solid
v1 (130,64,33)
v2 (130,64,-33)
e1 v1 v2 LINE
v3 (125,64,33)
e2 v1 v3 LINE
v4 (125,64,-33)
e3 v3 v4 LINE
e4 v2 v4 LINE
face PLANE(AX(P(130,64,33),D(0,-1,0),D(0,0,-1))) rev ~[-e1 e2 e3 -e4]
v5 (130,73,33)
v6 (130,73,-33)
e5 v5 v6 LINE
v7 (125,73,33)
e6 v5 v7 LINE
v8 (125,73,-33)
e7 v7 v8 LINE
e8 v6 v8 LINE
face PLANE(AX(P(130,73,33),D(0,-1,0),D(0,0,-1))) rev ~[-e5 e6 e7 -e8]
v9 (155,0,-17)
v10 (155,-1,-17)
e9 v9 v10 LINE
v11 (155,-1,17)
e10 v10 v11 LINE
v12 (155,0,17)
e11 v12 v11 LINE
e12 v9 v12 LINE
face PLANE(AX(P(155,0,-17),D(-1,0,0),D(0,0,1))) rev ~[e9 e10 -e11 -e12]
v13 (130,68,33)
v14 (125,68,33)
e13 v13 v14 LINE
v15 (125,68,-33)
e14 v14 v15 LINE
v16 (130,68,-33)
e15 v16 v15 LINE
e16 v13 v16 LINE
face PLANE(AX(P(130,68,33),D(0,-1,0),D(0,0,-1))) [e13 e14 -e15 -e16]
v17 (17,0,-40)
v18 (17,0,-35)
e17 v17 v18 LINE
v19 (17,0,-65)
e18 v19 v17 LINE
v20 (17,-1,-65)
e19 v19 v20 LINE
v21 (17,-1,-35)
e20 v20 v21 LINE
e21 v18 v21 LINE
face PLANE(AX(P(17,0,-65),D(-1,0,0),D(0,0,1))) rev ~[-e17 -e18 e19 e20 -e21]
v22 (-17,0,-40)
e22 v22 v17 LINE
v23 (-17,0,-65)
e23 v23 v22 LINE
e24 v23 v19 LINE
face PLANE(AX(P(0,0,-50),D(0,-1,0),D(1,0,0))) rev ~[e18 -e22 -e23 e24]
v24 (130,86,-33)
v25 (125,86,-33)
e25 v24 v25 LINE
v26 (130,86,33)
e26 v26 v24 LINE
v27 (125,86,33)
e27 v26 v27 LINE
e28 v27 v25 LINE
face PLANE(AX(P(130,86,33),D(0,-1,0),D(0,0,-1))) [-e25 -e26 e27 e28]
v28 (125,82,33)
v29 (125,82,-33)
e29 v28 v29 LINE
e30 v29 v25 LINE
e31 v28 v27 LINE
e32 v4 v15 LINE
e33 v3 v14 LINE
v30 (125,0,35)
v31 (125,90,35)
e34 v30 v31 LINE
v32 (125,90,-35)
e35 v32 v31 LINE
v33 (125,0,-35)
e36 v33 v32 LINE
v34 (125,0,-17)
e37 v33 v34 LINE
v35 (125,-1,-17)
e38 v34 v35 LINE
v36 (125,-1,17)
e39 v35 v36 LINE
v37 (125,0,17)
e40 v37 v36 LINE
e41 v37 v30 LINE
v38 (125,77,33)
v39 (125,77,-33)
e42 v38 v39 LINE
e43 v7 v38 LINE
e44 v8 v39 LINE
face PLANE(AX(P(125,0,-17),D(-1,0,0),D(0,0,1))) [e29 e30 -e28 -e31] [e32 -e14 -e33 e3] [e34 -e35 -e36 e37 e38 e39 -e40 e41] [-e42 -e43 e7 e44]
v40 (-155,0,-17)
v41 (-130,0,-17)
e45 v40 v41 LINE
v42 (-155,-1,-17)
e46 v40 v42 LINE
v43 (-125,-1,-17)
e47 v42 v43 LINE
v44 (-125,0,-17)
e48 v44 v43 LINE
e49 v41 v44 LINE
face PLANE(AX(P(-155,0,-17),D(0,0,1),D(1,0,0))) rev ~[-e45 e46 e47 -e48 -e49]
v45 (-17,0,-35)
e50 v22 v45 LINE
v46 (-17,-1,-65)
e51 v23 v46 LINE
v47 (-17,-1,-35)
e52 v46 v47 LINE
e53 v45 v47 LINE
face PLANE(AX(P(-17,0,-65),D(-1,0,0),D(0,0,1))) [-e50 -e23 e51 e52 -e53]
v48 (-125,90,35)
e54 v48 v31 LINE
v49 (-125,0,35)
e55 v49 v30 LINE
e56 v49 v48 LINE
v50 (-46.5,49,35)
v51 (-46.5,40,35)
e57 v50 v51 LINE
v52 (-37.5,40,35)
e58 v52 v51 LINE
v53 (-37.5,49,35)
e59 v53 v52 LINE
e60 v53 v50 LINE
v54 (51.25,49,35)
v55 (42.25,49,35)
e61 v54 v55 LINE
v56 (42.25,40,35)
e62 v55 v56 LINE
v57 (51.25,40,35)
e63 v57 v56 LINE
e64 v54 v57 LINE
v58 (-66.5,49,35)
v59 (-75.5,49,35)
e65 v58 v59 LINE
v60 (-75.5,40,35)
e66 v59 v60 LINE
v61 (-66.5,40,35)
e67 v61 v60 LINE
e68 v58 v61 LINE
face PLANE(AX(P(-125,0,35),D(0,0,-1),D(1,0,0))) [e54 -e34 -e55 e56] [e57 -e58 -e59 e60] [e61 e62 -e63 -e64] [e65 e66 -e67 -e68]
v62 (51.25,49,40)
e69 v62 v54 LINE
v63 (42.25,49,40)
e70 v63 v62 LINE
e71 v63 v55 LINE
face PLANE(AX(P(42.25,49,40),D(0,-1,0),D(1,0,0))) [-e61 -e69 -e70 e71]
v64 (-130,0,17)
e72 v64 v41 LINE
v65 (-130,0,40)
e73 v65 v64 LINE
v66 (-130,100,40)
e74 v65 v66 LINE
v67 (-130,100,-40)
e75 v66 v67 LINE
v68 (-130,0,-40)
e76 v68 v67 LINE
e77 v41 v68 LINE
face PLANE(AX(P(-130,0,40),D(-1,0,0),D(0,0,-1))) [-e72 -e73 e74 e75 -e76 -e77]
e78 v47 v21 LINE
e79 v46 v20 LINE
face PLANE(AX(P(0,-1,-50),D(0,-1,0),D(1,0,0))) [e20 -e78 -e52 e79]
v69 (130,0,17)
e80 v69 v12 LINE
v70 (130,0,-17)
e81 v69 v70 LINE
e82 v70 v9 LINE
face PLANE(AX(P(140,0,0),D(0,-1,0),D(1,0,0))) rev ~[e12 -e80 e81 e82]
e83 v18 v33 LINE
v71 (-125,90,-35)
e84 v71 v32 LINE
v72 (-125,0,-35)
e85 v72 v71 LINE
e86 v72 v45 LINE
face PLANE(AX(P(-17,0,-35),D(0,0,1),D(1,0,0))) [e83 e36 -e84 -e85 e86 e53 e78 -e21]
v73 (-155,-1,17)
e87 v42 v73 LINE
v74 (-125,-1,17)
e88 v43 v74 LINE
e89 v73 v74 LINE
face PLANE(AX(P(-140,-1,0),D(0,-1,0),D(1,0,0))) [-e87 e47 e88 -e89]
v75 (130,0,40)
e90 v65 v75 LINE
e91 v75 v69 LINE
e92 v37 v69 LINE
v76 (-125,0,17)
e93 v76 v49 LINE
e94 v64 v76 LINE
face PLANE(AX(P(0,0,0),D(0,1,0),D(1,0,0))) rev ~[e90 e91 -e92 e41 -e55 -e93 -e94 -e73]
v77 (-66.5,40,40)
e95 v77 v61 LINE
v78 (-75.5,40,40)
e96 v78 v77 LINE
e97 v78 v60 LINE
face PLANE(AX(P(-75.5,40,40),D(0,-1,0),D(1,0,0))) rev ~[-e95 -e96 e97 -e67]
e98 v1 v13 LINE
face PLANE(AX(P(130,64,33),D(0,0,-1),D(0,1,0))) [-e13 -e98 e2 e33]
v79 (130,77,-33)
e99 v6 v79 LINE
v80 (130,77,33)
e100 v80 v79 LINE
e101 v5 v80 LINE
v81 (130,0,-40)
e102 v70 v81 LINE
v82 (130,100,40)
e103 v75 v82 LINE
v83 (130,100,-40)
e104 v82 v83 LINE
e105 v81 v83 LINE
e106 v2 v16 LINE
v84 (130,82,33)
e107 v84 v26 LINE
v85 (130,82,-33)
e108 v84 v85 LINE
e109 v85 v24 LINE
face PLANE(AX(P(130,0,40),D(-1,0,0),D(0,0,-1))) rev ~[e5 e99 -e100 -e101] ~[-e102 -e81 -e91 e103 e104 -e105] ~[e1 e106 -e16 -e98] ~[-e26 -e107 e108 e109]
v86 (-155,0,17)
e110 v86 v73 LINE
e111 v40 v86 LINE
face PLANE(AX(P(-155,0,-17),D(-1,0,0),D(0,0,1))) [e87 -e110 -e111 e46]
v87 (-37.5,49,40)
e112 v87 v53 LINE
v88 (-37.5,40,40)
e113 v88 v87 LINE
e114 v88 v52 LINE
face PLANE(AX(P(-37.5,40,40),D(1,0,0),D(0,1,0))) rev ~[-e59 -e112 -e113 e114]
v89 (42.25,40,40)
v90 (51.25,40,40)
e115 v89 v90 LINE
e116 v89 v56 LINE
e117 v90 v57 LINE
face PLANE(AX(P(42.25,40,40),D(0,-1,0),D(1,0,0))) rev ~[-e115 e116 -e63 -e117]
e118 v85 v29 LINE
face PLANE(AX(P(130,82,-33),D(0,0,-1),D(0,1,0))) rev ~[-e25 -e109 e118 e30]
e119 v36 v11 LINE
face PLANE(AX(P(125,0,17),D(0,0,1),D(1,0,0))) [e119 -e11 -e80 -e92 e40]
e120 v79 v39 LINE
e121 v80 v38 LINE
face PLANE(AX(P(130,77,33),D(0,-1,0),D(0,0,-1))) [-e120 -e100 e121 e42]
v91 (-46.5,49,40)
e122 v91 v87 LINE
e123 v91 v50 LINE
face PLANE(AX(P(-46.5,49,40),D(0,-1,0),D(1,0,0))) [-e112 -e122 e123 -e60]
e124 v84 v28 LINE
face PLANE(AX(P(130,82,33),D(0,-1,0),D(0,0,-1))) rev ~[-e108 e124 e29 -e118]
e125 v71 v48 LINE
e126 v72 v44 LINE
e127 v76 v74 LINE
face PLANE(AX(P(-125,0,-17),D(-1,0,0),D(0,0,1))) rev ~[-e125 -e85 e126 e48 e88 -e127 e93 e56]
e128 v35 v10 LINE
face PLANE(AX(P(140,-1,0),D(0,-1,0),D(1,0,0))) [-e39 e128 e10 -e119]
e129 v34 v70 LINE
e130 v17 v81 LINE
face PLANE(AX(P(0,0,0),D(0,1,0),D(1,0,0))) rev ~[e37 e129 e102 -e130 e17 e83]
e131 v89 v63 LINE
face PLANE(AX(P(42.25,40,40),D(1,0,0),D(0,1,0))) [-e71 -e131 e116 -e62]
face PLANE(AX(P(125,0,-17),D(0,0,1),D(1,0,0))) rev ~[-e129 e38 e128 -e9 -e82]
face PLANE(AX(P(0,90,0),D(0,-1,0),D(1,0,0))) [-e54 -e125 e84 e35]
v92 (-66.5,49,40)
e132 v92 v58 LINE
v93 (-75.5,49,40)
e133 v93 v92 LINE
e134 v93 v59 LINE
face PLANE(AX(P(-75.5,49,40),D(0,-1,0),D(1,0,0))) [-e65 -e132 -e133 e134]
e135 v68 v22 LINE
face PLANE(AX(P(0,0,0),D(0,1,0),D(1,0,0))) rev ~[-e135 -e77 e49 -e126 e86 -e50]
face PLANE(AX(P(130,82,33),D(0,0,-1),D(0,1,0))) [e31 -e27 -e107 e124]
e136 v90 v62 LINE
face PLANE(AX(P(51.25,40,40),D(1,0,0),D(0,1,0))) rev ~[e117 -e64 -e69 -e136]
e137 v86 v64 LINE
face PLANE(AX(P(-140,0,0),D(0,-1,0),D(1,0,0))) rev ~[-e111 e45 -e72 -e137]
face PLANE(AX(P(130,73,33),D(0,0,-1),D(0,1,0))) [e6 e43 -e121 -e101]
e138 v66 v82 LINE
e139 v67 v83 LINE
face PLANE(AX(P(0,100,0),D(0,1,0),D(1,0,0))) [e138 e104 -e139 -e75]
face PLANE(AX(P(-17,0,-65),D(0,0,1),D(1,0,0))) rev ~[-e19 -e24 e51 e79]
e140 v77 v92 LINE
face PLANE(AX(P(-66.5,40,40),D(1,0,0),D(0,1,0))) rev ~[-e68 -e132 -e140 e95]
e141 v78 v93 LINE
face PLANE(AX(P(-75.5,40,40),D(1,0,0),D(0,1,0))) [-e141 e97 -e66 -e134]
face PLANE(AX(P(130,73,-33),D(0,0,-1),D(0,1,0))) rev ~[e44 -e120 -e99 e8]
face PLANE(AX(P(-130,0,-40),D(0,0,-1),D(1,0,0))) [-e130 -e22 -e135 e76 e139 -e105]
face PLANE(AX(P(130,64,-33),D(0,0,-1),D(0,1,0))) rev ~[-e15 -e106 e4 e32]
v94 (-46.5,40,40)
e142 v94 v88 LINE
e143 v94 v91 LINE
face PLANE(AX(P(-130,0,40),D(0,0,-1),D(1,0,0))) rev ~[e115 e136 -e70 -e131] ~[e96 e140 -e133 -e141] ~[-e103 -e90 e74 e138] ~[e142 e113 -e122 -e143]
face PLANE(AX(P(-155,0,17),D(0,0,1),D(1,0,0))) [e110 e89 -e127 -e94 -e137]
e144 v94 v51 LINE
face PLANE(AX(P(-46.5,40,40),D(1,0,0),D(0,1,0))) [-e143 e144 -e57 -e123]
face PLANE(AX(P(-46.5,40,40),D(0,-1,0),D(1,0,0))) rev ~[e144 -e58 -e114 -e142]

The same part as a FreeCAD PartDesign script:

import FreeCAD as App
import Part
import Sketcher

doc = App.newDocument("Part")
body = doc.addObject("PartDesign::Body", "Body")

# Sketch on XZ plane
sketch1 = body.newObject("Sketcher::SketchObject", "Sketch")
sketch1.AttachmentSupport = (doc.getObject("XZ_Plane"), [""])
sketch1.MapMode = "FlatFace"
sketch1.addGeometry(Part.LineSegment(App.Vector(-130, -40, 0), App.Vector(-130, 40, 0)), False)
sketch1.addGeometry(Part.LineSegment(App.Vector(-130, 40, 0), App.Vector(130, 40, 0)), False)
sketch1.addGeometry(Part.LineSegment(App.Vector(130, 40, 0), App.Vector(130, -40, 0)), False)
sketch1.addGeometry(Part.LineSegment(App.Vector(130, -40, 0), App.Vector(-130, -40, 0)), False)
sketch1.addConstraint(Sketcher.Constraint("Coincident", 0, 2, 1, 1))
sketch1.addConstraint(Sketcher.Constraint("Coincident", 1, 2, 2, 1))
sketch1.addConstraint(Sketcher.Constraint("Coincident", 2, 2, 3, 1))
sketch1.addConstraint(Sketcher.Constraint("Coincident", 3, 2, 0, 1))
sketch1.addConstraint(Sketcher.Constraint("Vertical", 0))
sketch1.addConstraint(Sketcher.Constraint("Horizontal", 1))
sketch1.addConstraint(Sketcher.Constraint("Vertical", 2))
sketch1.addConstraint(Sketcher.Constraint("Horizontal", 3))
sketch1.addConstraint(Sketcher.Constraint("Symmetric", 0, 2, 2, 2, -1, 1))
sketch1.addConstraint(Sketcher.Constraint("DistanceX", 1, 1, 1, 2, 260.0))
sketch1.addConstraint(Sketcher.Constraint("DistanceY", 0, 1, 0, 2, 80.0))
pad1 = body.newObject("PartDesign::Pad", "Pad")
pad1.Profile = sketch1
pad1.Length = 100
pad1.Reversed = True

# Sketch on XZ plane
sketch2 = body.newObject("Sketcher::SketchObject", "Sketch001")
sketch2.AttachmentSupport = (doc.getObject("XZ_Plane"), [""])
sketch2.MapMode = "FlatFace"
sketch2.addGeometry(Part.LineSegment(App.Vector(-125, 35, 0), App.Vector(-125, -35, 0)), False)
sketch2.addGeometry(Part.LineSegment(App.Vector(-125, -35, 0), App.Vector(125, -35, 0)), False)
sketch2.addGeometry(Part.LineSegment(App.Vector(125, -35, 0), App.Vector(125, 35, 0)), False)
sketch2.addGeometry(Part.LineSegment(App.Vector(125, 35, 0), App.Vector(-125, 35, 0)), False)
sketch2.addConstraint(Sketcher.Constraint("Coincident", 0, 2, 1, 1))
sketch2.addConstraint(Sketcher.Constraint("Coincident", 1, 2, 2, 1))
sketch2.addConstraint(Sketcher.Constraint("Coincident", 2, 2, 3, 1))
sketch2.addConstraint(Sketcher.Constraint("Coincident", 3, 2, 0, 1))
sketch2.addConstraint(Sketcher.Constraint("Vertical", 0))
sketch2.addConstraint(Sketcher.Constraint("Horizontal", 1))
sketch2.addConstraint(Sketcher.Constraint("Vertical", 2))
sketch2.addConstraint(Sketcher.Constraint("Horizontal", 3))
sketch2.addConstraint(Sketcher.Constraint("Symmetric", 0, 2, 2, 2, -1, 1))
sketch2.addConstraint(Sketcher.Constraint("DistanceX", 1, 1, 1, 2, 250.0))
sketch2.addConstraint(Sketcher.Constraint("DistanceY", 0, 2, 0, 1, 70.0))
pocket1 = body.newObject("PartDesign::Pocket", "Pocket")
pocket1.Profile = sketch2
pocket1.Length = 90

# Sketch on XY plane
sketch3 = body.newObject("Sketcher::SketchObject", "Sketch002")
sketch3.AttachmentSupport = (doc.getObject("XY_Plane"), [""])
sketch3.MapMode = "FlatFace"
sketch3.AttachmentOffset = App.Placement(App.Vector(0, 0, 40), App.Rotation())
sketch3.addGeometry(Part.LineSegment(App.Vector(-76, 49, 0), App.Vector(-76, 40, 0)), False)
sketch3.addGeometry(Part.LineSegment(App.Vector(-76, 40, 0), App.Vector(-66, 40, 0)), False)
sketch3.addGeometry(Part.LineSegment(App.Vector(-66, 40, 0), App.Vector(-66, 49, 0)), False)
sketch3.addGeometry(Part.LineSegment(App.Vector(-66, 49, 0), App.Vector(-76, 49, 0)), False)
sketch3.addGeometry(Part.LineSegment(App.Vector(-46, 49, 0), App.Vector(-46, 40, 0)), False)
sketch3.addGeometry(Part.LineSegment(App.Vector(-46, 40, 0), App.Vector(-38, 40, 0)), False)
sketch3.addGeometry(Part.LineSegment(App.Vector(-38, 40, 0), App.Vector(-38, 49, 0)), False)
sketch3.addGeometry(Part.LineSegment(App.Vector(-38, 49, 0), App.Vector(-46, 49, 0)), False)
sketch3.addGeometry(Part.LineSegment(App.Vector(42, 49, 0), App.Vector(42, 40, 0)), False)
sketch3.addGeometry(Part.LineSegment(App.Vector(42, 40, 0), App.Vector(51, 40, 0)), False)
sketch3.addGeometry(Part.LineSegment(App.Vector(51, 40, 0), App.Vector(51, 49, 0)), False)
sketch3.addGeometry(Part.LineSegment(App.Vector(51, 49, 0), App.Vector(42, 49, 0)), False)
sketch3.addConstraint(Sketcher.Constraint("Coincident", 0, 2, 1, 1))
sketch3.addConstraint(Sketcher.Constraint("Coincident", 1, 2, 2, 1))
sketch3.addConstraint(Sketcher.Constraint("Coincident", 2, 2, 3, 1))
sketch3.addConstraint(Sketcher.Constraint("Coincident", 3, 2, 0, 1))
sketch3.addConstraint(Sketcher.Constraint("Coincident", 4, 2, 5, 1))
sketch3.addConstraint(Sketcher.Constraint("Coincident", 5, 2, 6, 1))
sketch3.addConstraint(Sketcher.Constraint("Coincident", 6, 2, 7, 1))
sketch3.addConstraint(Sketcher.Constraint("Coincident", 7, 2, 4, 1))
sketch3.addConstraint(Sketcher.Constraint("Coincident", 8, 2, 9, 1))
sketch3.addConstraint(Sketcher.Constraint("Coincident", 9, 2, 10, 1))
sketch3.addConstraint(Sketcher.Constraint("Coincident", 10, 2, 11, 1))
sketch3.addConstraint(Sketcher.Constraint("Coincident", 11, 2, 8, 1))
sketch3.addConstraint(Sketcher.Constraint("Vertical", 0))
sketch3.addConstraint(Sketcher.Constraint("Horizontal", 1))
sketch3.addConstraint(Sketcher.Constraint("Vertical", 2))
sketch3.addConstraint(Sketcher.Constraint("Horizontal", 3))
sketch3.addConstraint(Sketcher.Constraint("Vertical", 4))
sketch3.addConstraint(Sketcher.Constraint("Horizontal", 5))
sketch3.addConstraint(Sketcher.Constraint("Vertical", 6))
sketch3.addConstraint(Sketcher.Constraint("Horizontal", 7))
sketch3.addConstraint(Sketcher.Constraint("Vertical", 8))
sketch3.addConstraint(Sketcher.Constraint("Horizontal", 9))
sketch3.addConstraint(Sketcher.Constraint("Vertical", 10))
sketch3.addConstraint(Sketcher.Constraint("Horizontal", 11))
sketch3.addConstraint(Sketcher.Constraint("Horizontal", 1, 2, 4, 2))
sketch3.addConstraint(Sketcher.Constraint("Horizontal", 3, 2, 6, 2))
sketch3.addConstraint(Sketcher.Constraint("Horizontal", 5, 2, 8, 2))
sketch3.addConstraint(Sketcher.Constraint("Horizontal", 7, 2, 10, 2))
sketch3.addConstraint(Sketcher.Constraint("Equal", 3, 5))
sketch3.addConstraint(Sketcher.Constraint("Equal", 7, 9))
sketch3.addConstraint(Sketcher.Constraint("Equal", 11, 0))
sketch3.addConstraint(Sketcher.Constraint("DistanceX", 1, 1, 1, 2, 9.0))
sketch3.addConstraint(Sketcher.Constraint("DistanceY", -1, 1, 0, 2, 40.0))
sketch3.addConstraint(Sketcher.Constraint("DistanceX", 1, 2, 4, 2, 20.0))
sketch3.addConstraint(Sketcher.Constraint("DistanceX", 0, 2, -1, 1, 75.5))
sketch3.addConstraint(Sketcher.Constraint("DistanceX", -1, 1, 8, 2, 42.25))
pocket2 = body.newObject("PartDesign::Pocket", "Pocket001")
pocket2.Profile = sketch3
pocket2.Length = 23

# Sketch on YZ plane
sketch4 = body.newObject("Sketcher::SketchObject", "Sketch003")
sketch4.AttachmentSupport = (doc.getObject("YZ_Plane"), [""])
sketch4.MapMode = "FlatFace"
sketch4.AttachmentOffset = App.Placement(App.Vector(0, 0, 130), App.Rotation())
sketch4.addGeometry(Part.LineSegment(App.Vector(86, 33, 0), App.Vector(82, 33, 0)), False)
sketch4.addGeometry(Part.LineSegment(App.Vector(82, 33, 0), App.Vector(82, -33, 0)), False)
sketch4.addGeometry(Part.LineSegment(App.Vector(82, -33, 0), App.Vector(86, -33, 0)), False)
sketch4.addGeometry(Part.LineSegment(App.Vector(86, -33, 0), App.Vector(86, 33, 0)), False)
sketch4.addConstraint(Sketcher.Constraint("Coincident", 0, 2, 1, 1))
sketch4.addConstraint(Sketcher.Constraint("Coincident", 1, 2, 2, 1))
sketch4.addConstraint(Sketcher.Constraint("Coincident", 2, 2, 3, 1))
sketch4.addConstraint(Sketcher.Constraint("Coincident", 3, 2, 0, 1))
sketch4.addConstraint(Sketcher.Constraint("Horizontal", 0))
sketch4.addConstraint(Sketcher.Constraint("Vertical", 1))
sketch4.addConstraint(Sketcher.Constraint("Horizontal", 2))
sketch4.addConstraint(Sketcher.Constraint("Vertical", 3))
sketch4.addConstraint(Sketcher.Constraint("DistanceX", 0, 2, 0, 1, 4.0))
sketch4.addConstraint(Sketcher.Constraint("DistanceY", 1, 2, 1, 1, 66.0))
sketch4.addConstraint(Sketcher.Constraint("DistanceX", -1, 1, 0, 2, 82.0))
sketch4.addConstraint(Sketcher.Constraint("DistanceY", -1, 1, 0, 2, 33.0))
pocket3 = body.newObject("PartDesign::Pocket", "Pocket002")
pocket3.Profile = sketch4
pocket3.Length = 15

# Sketch on YZ plane
sketch5 = body.newObject("Sketcher::SketchObject", "Sketch004")
sketch5.AttachmentSupport = (doc.getObject("YZ_Plane"), [""])
sketch5.MapMode = "FlatFace"
sketch5.AttachmentOffset = App.Placement(App.Vector(0, 0, 130), App.Rotation())
sketch5.addGeometry(Part.LineSegment(App.Vector(77, 33, 0), App.Vector(73, 33, 0)), False)
sketch5.addGeometry(Part.LineSegment(App.Vector(73, 33, 0), App.Vector(73, -33, 0)), False)
sketch5.addGeometry(Part.LineSegment(App.Vector(73, -33, 0), App.Vector(77, -33, 0)), False)
sketch5.addGeometry(Part.LineSegment(App.Vector(77, -33, 0), App.Vector(77, 33, 0)), False)
sketch5.addConstraint(Sketcher.Constraint("Coincident", 0, 2, 1, 1))
sketch5.addConstraint(Sketcher.Constraint("Coincident", 1, 2, 2, 1))
sketch5.addConstraint(Sketcher.Constraint("Coincident", 2, 2, 3, 1))
sketch5.addConstraint(Sketcher.Constraint("Coincident", 3, 2, 0, 1))
sketch5.addConstraint(Sketcher.Constraint("Horizontal", 0))
sketch5.addConstraint(Sketcher.Constraint("Vertical", 1))
sketch5.addConstraint(Sketcher.Constraint("Horizontal", 2))
sketch5.addConstraint(Sketcher.Constraint("Vertical", 3))
sketch5.addConstraint(Sketcher.Constraint("DistanceX", 0, 2, 0, 1, 4.0))
sketch5.addConstraint(Sketcher.Constraint("DistanceY", 1, 2, 1, 1, 66.0))
sketch5.addConstraint(Sketcher.Constraint("DistanceX", -1, 1, 0, 2, 73.0))
sketch5.addConstraint(Sketcher.Constraint("DistanceY", -1, 1, 0, 2, 33.0))
pocket4 = body.newObject("PartDesign::Pocket", "Pocket003")
pocket4.Profile = sketch5
pocket4.Length = 10

# Sketch on YZ plane
sketch6 = body.newObject("Sketcher::SketchObject", "Sketch005")
sketch6.AttachmentSupport = (doc.getObject("YZ_Plane"), [""])
sketch6.MapMode = "FlatFace"
sketch6.AttachmentOffset = App.Placement(App.Vector(0, 0, 130), App.Rotation())
sketch6.addGeometry(Part.LineSegment(App.Vector(68, 33, 0), App.Vector(64, 33, 0)), False)
sketch6.addGeometry(Part.LineSegment(App.Vector(64, 33, 0), App.Vector(64, -33, 0)), False)
sketch6.addGeometry(Part.LineSegment(App.Vector(64, -33, 0), App.Vector(68, -33, 0)), False)
sketch6.addGeometry(Part.LineSegment(App.Vector(68, -33, 0), App.Vector(68, 33, 0)), False)
sketch6.addConstraint(Sketcher.Constraint("Coincident", 0, 2, 1, 1))
sketch6.addConstraint(Sketcher.Constraint("Coincident", 1, 2, 2, 1))
sketch6.addConstraint(Sketcher.Constraint("Coincident", 2, 2, 3, 1))
sketch6.addConstraint(Sketcher.Constraint("Coincident", 3, 2, 0, 1))
sketch6.addConstraint(Sketcher.Constraint("Horizontal", 0))
sketch6.addConstraint(Sketcher.Constraint("Vertical", 1))
sketch6.addConstraint(Sketcher.Constraint("Horizontal", 2))
sketch6.addConstraint(Sketcher.Constraint("Vertical", 3))
sketch6.addConstraint(Sketcher.Constraint("DistanceX", 0, 2, 0, 1, 4.0))
sketch6.addConstraint(Sketcher.Constraint("DistanceY", 1, 2, 1, 1, 66.0))
sketch6.addConstraint(Sketcher.Constraint("DistanceX", -1, 1, 0, 2, 64.0))
sketch6.addConstraint(Sketcher.Constraint("DistanceY", -1, 1, 0, 2, 33.0))
pocket5 = body.newObject("PartDesign::Pocket", "Pocket004")
pocket5.Profile = sketch6
pocket5.Length = 10

# Sketch on XZ plane
sketch7 = body.newObject("Sketcher::SketchObject", "Sketch006")
sketch7.AttachmentSupport = (doc.getObject("XZ_Plane"), [""])
sketch7.MapMode = "FlatFace"
sketch7.addGeometry(Part.LineSegment(App.Vector(-17, -35, 0), App.Vector(-17, -65, 0)), False)
sketch7.addGeometry(Part.LineSegment(App.Vector(-17, -65, 0), App.Vector(17, -65, 0)), False)
sketch7.addGeometry(Part.LineSegment(App.Vector(17, -65, 0), App.Vector(17, -35, 0)), False)
sketch7.addGeometry(Part.LineSegment(App.Vector(17, -35, 0), App.Vector(-17, -35, 0)), False)
sketch7.addConstraint(Sketcher.Constraint("Coincident", 0, 2, 1, 1))
sketch7.addConstraint(Sketcher.Constraint("Coincident", 1, 2, 2, 1))
sketch7.addConstraint(Sketcher.Constraint("Coincident", 2, 2, 3, 1))
sketch7.addConstraint(Sketcher.Constraint("Coincident", 3, 2, 0, 1))
sketch7.addConstraint(Sketcher.Constraint("Vertical", 0))
sketch7.addConstraint(Sketcher.Constraint("Horizontal", 1))
sketch7.addConstraint(Sketcher.Constraint("Vertical", 2))
sketch7.addConstraint(Sketcher.Constraint("Horizontal", 3))
sketch7.addConstraint(Sketcher.Constraint("DistanceX", 1, 1, 1, 2, 34.0))
sketch7.addConstraint(Sketcher.Constraint("DistanceY", 0, 2, 0, 1, 30.0))
sketch7.addConstraint(Sketcher.Constraint("DistanceX", 0, 2, -1, 1, 17.0))
sketch7.addConstraint(Sketcher.Constraint("DistanceY", 0, 2, -1, 1, 65.0))
pad2 = body.newObject("PartDesign::Pad", "Pad001")
pad2.Profile = sketch7
pad2.Length = 1

# Sketch on XZ plane
sketch8 = body.newObject("Sketcher::SketchObject", "Sketch007")
sketch8.AttachmentSupport = (doc.getObject("XZ_Plane"), [""])
sketch8.MapMode = "FlatFace"
sketch8.addGeometry(Part.LineSegment(App.Vector(-155, 17, 0), App.Vector(-155, -17, 0)), False)
sketch8.addGeometry(Part.LineSegment(App.Vector(-155, -17, 0), App.Vector(-125, -17, 0)), False)
sketch8.addGeometry(Part.LineSegment(App.Vector(-125, -17, 0), App.Vector(-125, 17, 0)), False)
sketch8.addGeometry(Part.LineSegment(App.Vector(-125, 17, 0), App.Vector(-155, 17, 0)), False)
sketch8.addConstraint(Sketcher.Constraint("Coincident", 0, 2, 1, 1))
sketch8.addConstraint(Sketcher.Constraint("Coincident", 1, 2, 2, 1))
sketch8.addConstraint(Sketcher.Constraint("Coincident", 2, 2, 3, 1))
sketch8.addConstraint(Sketcher.Constraint("Coincident", 3, 2, 0, 1))
sketch8.addConstraint(Sketcher.Constraint("Vertical", 0))
sketch8.addConstraint(Sketcher.Constraint("Horizontal", 1))
sketch8.addConstraint(Sketcher.Constraint("Vertical", 2))
sketch8.addConstraint(Sketcher.Constraint("Horizontal", 3))
sketch8.addConstraint(Sketcher.Constraint("DistanceX", 1, 1, 1, 2, 30.0))
sketch8.addConstraint(Sketcher.Constraint("DistanceY", 0, 2, 0, 1, 34.0))
sketch8.addConstraint(Sketcher.Constraint("DistanceX", 0, 2, -1, 1, 155.0))
sketch8.addConstraint(Sketcher.Constraint("DistanceY", 0, 2, -1, 1, 17.0))
pad3 = body.newObject("PartDesign::Pad", "Pad002")
pad3.Profile = sketch8
pad3.Length = 1

# Sketch on XZ plane
sketch9 = body.newObject("Sketcher::SketchObject", "Sketch008")
sketch9.AttachmentSupport = (doc.getObject("XZ_Plane"), [""])
sketch9.MapMode = "FlatFace"
sketch9.addGeometry(Part.LineSegment(App.Vector(125, 17, 0), App.Vector(125, -17, 0)), False)
sketch9.addGeometry(Part.LineSegment(App.Vector(125, -17, 0), App.Vector(155, -17, 0)), False)
sketch9.addGeometry(Part.LineSegment(App.Vector(155, -17, 0), App.Vector(155, 17, 0)), False)
sketch9.addGeometry(Part.LineSegment(App.Vector(155, 17, 0), App.Vector(125, 17, 0)), False)
sketch9.addConstraint(Sketcher.Constraint("Coincident", 0, 2, 1, 1))
sketch9.addConstraint(Sketcher.Constraint("Coincident", 1, 2, 2, 1))
sketch9.addConstraint(Sketcher.Constraint("Coincident", 2, 2, 3, 1))
sketch9.addConstraint(Sketcher.Constraint("Coincident", 3, 2, 0, 1))
sketch9.addConstraint(Sketcher.Constraint("Vertical", 0))
sketch9.addConstraint(Sketcher.Constraint("Horizontal", 1))
sketch9.addConstraint(Sketcher.Constraint("Vertical", 2))
sketch9.addConstraint(Sketcher.Constraint("Horizontal", 3))
sketch9.addConstraint(Sketcher.Constraint("DistanceX", 1, 1, 1, 2, 30.0))
sketch9.addConstraint(Sketcher.Constraint("DistanceY", 0, 2, 0, 1, 34.0))
sketch9.addConstraint(Sketcher.Constraint("DistanceX", -1, 1, 0, 2, 125.0))
sketch9.addConstraint(Sketcher.Constraint("DistanceY", 0, 2, -1, 1, 17.0))
pad4 = body.newObject("PartDesign::Pad", "Pad003")
pad4.Profile = sketch9
pad4.Length = 1

doc.recompute()
